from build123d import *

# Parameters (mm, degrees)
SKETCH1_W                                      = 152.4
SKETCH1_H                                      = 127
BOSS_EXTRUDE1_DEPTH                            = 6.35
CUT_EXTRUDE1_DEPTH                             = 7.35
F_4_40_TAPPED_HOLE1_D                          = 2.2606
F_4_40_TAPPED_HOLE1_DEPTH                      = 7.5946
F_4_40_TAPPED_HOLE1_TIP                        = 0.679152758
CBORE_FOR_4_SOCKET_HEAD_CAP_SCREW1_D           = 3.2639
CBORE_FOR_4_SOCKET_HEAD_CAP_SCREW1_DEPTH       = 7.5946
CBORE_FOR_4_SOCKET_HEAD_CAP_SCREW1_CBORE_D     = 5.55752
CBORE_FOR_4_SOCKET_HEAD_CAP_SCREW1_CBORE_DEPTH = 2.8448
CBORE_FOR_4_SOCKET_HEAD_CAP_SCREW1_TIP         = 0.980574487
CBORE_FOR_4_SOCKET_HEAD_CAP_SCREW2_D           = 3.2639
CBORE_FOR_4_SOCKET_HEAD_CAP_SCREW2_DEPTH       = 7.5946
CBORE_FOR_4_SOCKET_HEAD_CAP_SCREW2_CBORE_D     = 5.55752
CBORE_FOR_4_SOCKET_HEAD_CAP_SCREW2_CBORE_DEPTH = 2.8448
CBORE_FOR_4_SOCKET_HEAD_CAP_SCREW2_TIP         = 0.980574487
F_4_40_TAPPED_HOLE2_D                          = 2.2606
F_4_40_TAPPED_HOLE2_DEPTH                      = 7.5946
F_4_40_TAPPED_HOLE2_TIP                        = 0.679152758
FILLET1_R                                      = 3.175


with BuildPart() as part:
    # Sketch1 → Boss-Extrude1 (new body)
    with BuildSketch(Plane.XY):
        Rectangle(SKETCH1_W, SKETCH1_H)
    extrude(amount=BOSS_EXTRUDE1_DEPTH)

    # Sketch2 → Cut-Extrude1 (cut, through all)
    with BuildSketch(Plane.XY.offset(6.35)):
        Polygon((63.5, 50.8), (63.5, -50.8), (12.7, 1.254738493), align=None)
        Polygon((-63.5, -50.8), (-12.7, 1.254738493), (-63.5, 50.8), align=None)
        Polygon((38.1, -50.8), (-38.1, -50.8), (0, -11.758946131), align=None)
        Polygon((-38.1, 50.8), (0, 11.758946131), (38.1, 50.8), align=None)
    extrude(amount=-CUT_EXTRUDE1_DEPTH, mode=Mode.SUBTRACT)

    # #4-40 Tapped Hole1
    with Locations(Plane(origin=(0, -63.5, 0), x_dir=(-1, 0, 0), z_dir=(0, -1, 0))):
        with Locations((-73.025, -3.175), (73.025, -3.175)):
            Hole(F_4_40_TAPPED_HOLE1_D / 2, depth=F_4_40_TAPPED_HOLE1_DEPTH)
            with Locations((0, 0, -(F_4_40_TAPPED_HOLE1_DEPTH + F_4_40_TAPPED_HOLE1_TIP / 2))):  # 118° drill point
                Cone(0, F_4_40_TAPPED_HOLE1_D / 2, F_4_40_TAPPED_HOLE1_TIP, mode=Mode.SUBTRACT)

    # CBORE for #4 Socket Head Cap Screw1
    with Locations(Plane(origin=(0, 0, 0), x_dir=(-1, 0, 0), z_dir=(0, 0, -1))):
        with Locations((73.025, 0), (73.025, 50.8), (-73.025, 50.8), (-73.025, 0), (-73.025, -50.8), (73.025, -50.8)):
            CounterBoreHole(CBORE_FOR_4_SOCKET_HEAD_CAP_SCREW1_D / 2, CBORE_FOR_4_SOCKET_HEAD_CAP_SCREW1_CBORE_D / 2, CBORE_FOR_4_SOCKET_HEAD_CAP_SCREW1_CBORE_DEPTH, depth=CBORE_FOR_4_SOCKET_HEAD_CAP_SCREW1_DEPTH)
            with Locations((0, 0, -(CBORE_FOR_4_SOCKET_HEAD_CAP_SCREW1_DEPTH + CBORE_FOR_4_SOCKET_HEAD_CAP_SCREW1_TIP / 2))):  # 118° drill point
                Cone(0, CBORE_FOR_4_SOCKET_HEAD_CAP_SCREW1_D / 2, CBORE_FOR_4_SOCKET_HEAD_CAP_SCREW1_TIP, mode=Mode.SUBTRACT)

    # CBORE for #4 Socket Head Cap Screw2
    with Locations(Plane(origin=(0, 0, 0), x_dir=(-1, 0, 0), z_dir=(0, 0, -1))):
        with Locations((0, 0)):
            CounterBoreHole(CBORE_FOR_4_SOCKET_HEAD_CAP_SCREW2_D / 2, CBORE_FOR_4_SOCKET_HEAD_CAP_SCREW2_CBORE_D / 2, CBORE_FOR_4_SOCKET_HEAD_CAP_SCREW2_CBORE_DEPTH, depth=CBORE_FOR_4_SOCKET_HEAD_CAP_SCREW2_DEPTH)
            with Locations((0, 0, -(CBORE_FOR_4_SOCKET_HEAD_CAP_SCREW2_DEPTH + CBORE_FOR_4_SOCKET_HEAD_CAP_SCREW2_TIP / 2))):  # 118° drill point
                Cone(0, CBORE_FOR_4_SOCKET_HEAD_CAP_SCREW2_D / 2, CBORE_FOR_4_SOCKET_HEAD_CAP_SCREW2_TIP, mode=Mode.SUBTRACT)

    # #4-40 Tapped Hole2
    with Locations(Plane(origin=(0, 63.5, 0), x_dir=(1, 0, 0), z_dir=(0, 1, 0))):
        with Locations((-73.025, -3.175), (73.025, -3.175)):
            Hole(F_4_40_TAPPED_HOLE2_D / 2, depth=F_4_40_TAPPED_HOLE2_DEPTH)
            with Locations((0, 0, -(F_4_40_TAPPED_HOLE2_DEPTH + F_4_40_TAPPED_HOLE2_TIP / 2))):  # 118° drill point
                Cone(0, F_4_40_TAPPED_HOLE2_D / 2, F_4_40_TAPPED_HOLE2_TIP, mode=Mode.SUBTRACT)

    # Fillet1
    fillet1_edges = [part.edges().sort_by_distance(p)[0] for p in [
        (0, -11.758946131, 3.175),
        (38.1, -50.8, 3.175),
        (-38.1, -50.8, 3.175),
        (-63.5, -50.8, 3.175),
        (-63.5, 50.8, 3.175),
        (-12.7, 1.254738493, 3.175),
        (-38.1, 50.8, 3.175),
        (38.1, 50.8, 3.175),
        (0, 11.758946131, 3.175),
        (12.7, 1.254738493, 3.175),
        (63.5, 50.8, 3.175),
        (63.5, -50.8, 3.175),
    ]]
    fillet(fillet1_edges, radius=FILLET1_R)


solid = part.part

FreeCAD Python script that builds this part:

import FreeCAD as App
import Part
import Sketcher
Q = App.Units.Quantity


def edges_at(feature, points):
    """Names of the edges that pass closest to the given points."""
    edges = feature.Shape.Edges
    near = lambda p: min(range(len(edges)), key=lambda i: edges[i].distToShape(Part.Vertex(*p))[0])
    return sorted({f"Edge{near(p) + 1}" for p in points})

doc = App.newDocument("Part")
body = doc.addObject("PartDesign::Body", "Body")

# Sketch on XY plane
sketch1 = body.newObject("Sketcher::SketchObject", "Sketch")
sketch1.AttachmentSupport = (doc.getObject("XY_Plane"), [""])
sketch1.MapMode = "FlatFace"
sketch1.addGeometry([
    Part.LineSegment(App.Vector(-76, 64, 0), App.Vector(-76, -64, 0)),
    Part.LineSegment(App.Vector(-76, -64, 0), App.Vector(76, -64, 0)),
    Part.LineSegment(App.Vector(76, -64, 0), App.Vector(76, 64, 0)),
    Part.LineSegment(App.Vector(76, 64, 0), App.Vector(-76, 64, 0)),
], False)
sketch1.addConstraint([
    Sketcher.Constraint("Coincident", 0, 2, 1, 1),
    Sketcher.Constraint("Coincident", 1, 2, 2, 1),
    Sketcher.Constraint("Coincident", 2, 2, 3, 1),
    Sketcher.Constraint("Coincident", 3, 2, 0, 1),
    Sketcher.Constraint("Vertical", 0),
    Sketcher.Constraint("Horizontal", 1),
    Sketcher.Constraint("Vertical", 2),
    Sketcher.Constraint("Horizontal", 3),
    Sketcher.Constraint("Symmetric", 0, 2, 2, 2, -1, 1),
    Sketcher.Constraint("DistanceX", 1, 1, 1, 2, Q("6 in")),
    Sketcher.Constraint("DistanceY", 0, 2, 0, 1, Q("5 in")),
])
pad1 = body.newObject("PartDesign::Pad", "Pad")
pad1.Profile = sketch1
pad1.Length = Q("0.25 in")

# Sketch on XY plane
sketch2 = body.newObject("Sketcher::SketchObject", "Sketch001")
sketch2.AttachmentSupport = (doc.getObject("XY_Plane"), [""])
sketch2.MapMode = "FlatFace"
sketch2.AttachmentOffset = App.Placement(App.Vector(0, 0, 0.25 * 25.4), App.Rotation())
sketch2.addGeometry([
    Part.LineSegment(App.Vector(64, -51, 0), App.Vector(64, 51, 0)),  # 0
    Part.LineSegment(App.Vector(64, 51, 0), App.Vector(13, 1, 0)),  # 1
    Part.LineSegment(App.Vector(13, 1, 0), App.Vector(64, -51, 0)),  # 2
    Part.LineSegment(App.Vector(-64, -51, 0), App.Vector(-13, 1, 0)),  # 3
    Part.LineSegment(App.Vector(-13, 1, 0), App.Vector(-64, 51, 0)),  # 4
    Part.LineSegment(App.Vector(-64, 51, 0), App.Vector(-64, -51, 0)),  # 5
    Part.LineSegment(App.Vector(-38, -51, 0), App.Vector(38, -51, 0)),  # 6
    Part.LineSegment(App.Vector(38, -51, 0), App.Vector(0, -12, 0)),  # 7
    Part.LineSegment(App.Vector(0, -12, 0), App.Vector(-38, -51, 0)),  # 8
    Part.LineSegment(App.Vector(-38, 51, 0), App.Vector(0, 12, 0)),  # 9
    Part.LineSegment(App.Vector(0, 12, 0), App.Vector(38, 51, 0)),  # 10
    Part.LineSegment(App.Vector(38, 51, 0), App.Vector(-38, 51, 0)),  # 11
], False)
sketch2.addConstraint([
    Sketcher.Constraint("Coincident", 0, 2, 1, 1),
    Sketcher.Constraint("Coincident", 1, 2, 2, 1),
    Sketcher.Constraint("Coincident", 2, 2, 0, 1),
    Sketcher.Constraint("Coincident", 3, 2, 4, 1),
    Sketcher.Constraint("Coincident", 4, 2, 5, 1),
    Sketcher.Constraint("Coincident", 5, 2, 3, 1),
    Sketcher.Constraint("Coincident", 6, 2, 7, 1),
    Sketcher.Constraint("Coincident", 7, 2, 8, 1),
    Sketcher.Constraint("Coincident", 8, 2, 6, 1),
    Sketcher.Constraint("Coincident", 9, 2, 10, 1),
    Sketcher.Constraint("Coincident", 10, 2, 11, 1),
    Sketcher.Constraint("Coincident", 11, 2, 9, 1),
    Sketcher.Constraint("Vertical", 0),
    Sketcher.Constraint("Vertical", 5),
    Sketcher.Constraint("Horizontal", 6),
    Sketcher.Constraint("Horizontal", 11),
    Sketcher.Constraint("Symmetric", 2, 2, 4, 2, -1, 1),
    Sketcher.Constraint("Symmetric", 7, 2, 9, 2, -1, 1),
    Sketcher.Constraint("Symmetric", 8, 2, 10, 2, -1, 1),
    Sketcher.Constraint("Symmetric", 1, 2, 3, 2, -2),
    Sketcher.Constraint("PointOnObject", 7, 2, -2),
    Sketcher.Constraint("Parallel", 2, 7),
    Sketcher.Constraint("Parallel", 3, 8),
    Sketcher.Constraint("Parallel", 7, 9),
    Sketcher.Constraint("Horizontal", 0, 2, 4, 2),
    Sketcher.Constraint("Horizontal", 2, 2, 5, 2),
    Sketcher.Constraint("Horizontal", 5, 2, 6, 2),
    Sketcher.Constraint("DistanceX", 6, 1, 6, 2, Q("3 in")),
    Sketcher.Constraint("DistanceY", 0, 1, 0, 2, Q("4 in")),
    Sketcher.Constraint("DistanceX", 1, 2, 0, 2, Q("2 in")),
    Sketcher.Constraint("DistanceX", 3, 2, 1, 2, Q("1 in")),
    Sketcher.Constraint("Distance", 1, Q("70.960362 mm")),
])
pocket1 = body.newObject("PartDesign::Pocket", "Pocket")
pocket1.Profile = sketch2
pocket1.Type = "ThroughAll"

# Sketch on XZ plane
sketch3 = body.newObject("Sketcher::SketchObject", "Sketch002")
sketch3.AttachmentSupport = (doc.getObject("XZ_Plane"), [""])
sketch3.MapMode = "FlatFace"
sketch3.AttachmentOffset = App.Placement(App.Vector(0, 0, 2.5 * 25.4), App.Rotation())
sketch3.addGeometry([
    Part.Circle(App.Vector(73, 3.2, 0), App.Vector(0, 0, 1), 1.1),
    Part.Circle(App.Vector(-73, 3.2, 0), App.Vector(0, 0, 1), 1.1),
], False)
sketch3.addConstraint([
    Sketcher.Constraint("Equal", 0, 1),
    Sketcher.Constraint("Symmetric", 0, 3, 1, 3, -2),
    Sketcher.Constraint("Diameter", 0, Q("0.089 in")),
    Sketcher.Constraint("DistanceX", 1, 3, 0, 3, Q("5.75 in")),
    Sketcher.Constraint("DistanceY", -1, 1, 0, 3, Q("0.125 in")),
])
doc.recompute()
hole = body.newObject("PartDesign::Hole", "Hole")
hole.Profile = sketch3
hole.ThreadType = "None"
hole.Diameter = Q("0.089 in")
hole.DepthType = "Dimension"
hole.Depth = Q("0.299 in")
hole.DrillPoint = "Angled"
hole.DrillPointAngle = 118

# Sketch on XY plane
sketch4 = body.newObject("Sketcher::SketchObject", "Sketch003")
sketch4.AttachmentSupport = (doc.getObject("XY_Plane"), [""])
sketch4.MapMode = "FlatFace"
sketch4.addGeometry([
    Part.Circle(App.Vector(-73, 0, 0), App.Vector(0, 0, 1), 1.6),  # 0
    Part.Circle(App.Vector(-73, 50.8, 0), App.Vector(0, 0, 1), 1.6),  # 1
    Part.Circle(App.Vector(73, 50.8, 0), App.Vector(0, 0, 1), 1.6),  # 2
    Part.Circle(App.Vector(73, 0, 0), App.Vector(0, 0, 1), 1.6),  # 3
    Part.Circle(App.Vector(73, -50.8, 0), App.Vector(0, 0, 1), 1.6),  # 4
    Part.Circle(App.Vector(-73, -50.8, 0), App.Vector(0, 0, 1), 1.6),  # 5
], False)
sketch4.addConstraint([
    Sketcher.Constraint("Equal", 0, 1),
    Sketcher.Constraint("Equal", 1, 2),
    Sketcher.Constraint("Equal", 2, 3),
    Sketcher.Constraint("Equal", 3, 4),
    Sketcher.Constraint("Equal", 4, 5),
    Sketcher.Constraint("Symmetric", 0, 3, 3, 3, -1, 1),
    Sketcher.Constraint("Symmetric", 1, 3, 4, 3, -1, 1),
    Sketcher.Constraint("Symmetric", 2, 3, 5, 3, -1, 1),
    Sketcher.Constraint("Symmetric", 1, 3, 2, 3, -2),
    Sketcher.Constraint("PointOnObject", 0, 3, -1),
    Sketcher.Constraint("Vertical", 0, 3, 1, 3),
    Sketcher.Constraint("DistanceY", -1, 1, 1, 3, Q("2 in")),
    Sketcher.Constraint("Diameter", 0, Q("0.1285 in")),
    Sketcher.Constraint("DistanceX", 1, 3, 2, 3, Q("5.75 in")),
])
doc.recompute()
hole2 = body.newObject("PartDesign::Hole", "Hole001")
hole2.Profile = sketch4
hole2.ThreadType = "None"
hole2.Diameter = Q("0.1285 in")
hole2.DepthType = "Dimension"
hole2.Depth = Q("0.299 in")
hole2.DrillPoint = "Angled"
hole2.DrillPointAngle = 118
hole2.HoleCutType = "Counterbore"
hole2.HoleCutDiameter = Q("0.2188 in")
hole2.HoleCutDepth = Q("0.112 in")
hole2.Reversed = True

# Sketch on XY plane
sketch5 = body.newObject("Sketcher::SketchObject", "Sketch004")
sketch5.AttachmentSupport = (doc.getObject("XY_Plane"), [""])
sketch5.MapMode = "FlatFace"
sketch5.addGeometry(Part.Circle(App.Vector(0, 0, 0), App.Vector(0, 0, 1), 1.6), False)
sketch5.addConstraint([
    Sketcher.Constraint("Coincident", 0, 3, -1, 1),
    Sketcher.Constraint("Diameter", 0, Q("0.1285 in")),
])
doc.recompute()
hole3 = body.newObject("PartDesign::Hole", "Hole002")
hole3.Profile = sketch5
hole3.ThreadType = "None"
hole3.Diameter = Q("0.1285 in")
hole3.DepthType = "Dimension"
hole3.Depth = Q("0.299 in")
hole3.DrillPoint = "Angled"
hole3.DrillPointAngle = 118
hole3.HoleCutType = "Counterbore"
hole3.HoleCutDiameter = Q("0.2188 in")
hole3.HoleCutDepth = Q("0.112 in")
hole3.Reversed = True

# Sketch on XZ plane
sketch6 = body.newObject("Sketcher::SketchObject", "Sketch005")
sketch6.AttachmentSupport = (doc.getObject("XZ_Plane"), [""])
sketch6.MapMode = "FlatFace"
sketch6.AttachmentOffset = App.Placement(App.Vector(0, 0, -2.5 * 25.4), App.Rotation())
sketch6.addGeometry([
    Part.Circle(App.Vector(-73, 3.2, 0), App.Vector(0, 0, 1), 1.1),
    Part.Circle(App.Vector(73, 3.2, 0), App.Vector(0, 0, 1), 1.1),
], False)
sketch6.addConstraint([
    Sketcher.Constraint("Equal", 0, 1),
    Sketcher.Constraint("Symmetric", 0, 3, 1, 3, -2),
    Sketcher.Constraint("Diameter", 0, Q("0.089 in")),
    Sketcher.Constraint("DistanceX", 0, 3, 1, 3, Q("5.75 in")),
    Sketcher.Constraint("DistanceY", -1, 1, 0, 3, Q("0.125 in")),
])
doc.recompute()
hole4 = body.newObject("PartDesign::Hole", "Hole003")
hole4.Profile = sketch6
hole4.ThreadType = "None"
hole4.Diameter = Q("0.089 in")
hole4.DepthType = "Dimension"
hole4.Depth = Q("0.299 in")
hole4.DrillPoint = "Angled"
hole4.DrillPointAngle = 118
hole4.Reversed = True
doc.recompute()

fillet = body.newObject("PartDesign::Fillet", "Fillet")
fillet.Base = (hole4, edges_at(hole4, [
    (0, -11.759, 3.175),
    (38.1, -50.8, 3.175),
    (-38.1, -50.8, 3.175),
    (-63.5, -50.8, 3.175),
    (-63.5, 50.8, 3.175),
    (-12.7, 1.255, 3.175),
    (-38.1, 50.8, 3.175),
    (38.1, 50.8, 3.175),
    (0, 11.759, 3.175),
    (12.7, 1.255, 3.175),
    (63.5, 50.8, 3.175),
    (63.5, -50.8, 3.175),
]))
fillet.Radius = Q("0.125 in")

doc.recompute()
